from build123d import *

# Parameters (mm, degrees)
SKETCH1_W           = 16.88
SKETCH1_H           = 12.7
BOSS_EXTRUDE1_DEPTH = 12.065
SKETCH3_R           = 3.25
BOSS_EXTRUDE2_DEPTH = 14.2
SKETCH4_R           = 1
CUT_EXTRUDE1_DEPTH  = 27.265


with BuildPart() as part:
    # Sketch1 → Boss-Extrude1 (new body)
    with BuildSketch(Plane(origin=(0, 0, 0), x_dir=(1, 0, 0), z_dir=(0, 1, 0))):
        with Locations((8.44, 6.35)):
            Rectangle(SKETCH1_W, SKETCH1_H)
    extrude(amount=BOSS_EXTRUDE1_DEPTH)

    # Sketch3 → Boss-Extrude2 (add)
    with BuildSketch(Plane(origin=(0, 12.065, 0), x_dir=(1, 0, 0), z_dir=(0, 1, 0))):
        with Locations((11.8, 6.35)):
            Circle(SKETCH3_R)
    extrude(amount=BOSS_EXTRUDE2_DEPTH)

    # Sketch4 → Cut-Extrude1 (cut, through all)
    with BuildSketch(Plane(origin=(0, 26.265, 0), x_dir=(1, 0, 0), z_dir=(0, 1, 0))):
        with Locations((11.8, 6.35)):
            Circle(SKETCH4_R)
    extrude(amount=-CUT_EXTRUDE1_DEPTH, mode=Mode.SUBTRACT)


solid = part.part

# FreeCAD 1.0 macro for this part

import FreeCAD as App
import Part
import Sketcher


def add_polygon(sketch, points):
    """Adds a closed chain of lines whose ends are joined by coincident constraints."""
    first, n = sketch.GeometryCount, len(points)
    for a, b in zip(points, points[1:] + points[:1]):
        sketch.addGeometry(Part.LineSegment(App.Vector(*a, 0), App.Vector(*b, 0)), False)
    for i in range(n):
        sketch.addConstraint(Sketcher.Constraint("Coincident", first + i, 2, first + (i + 1) % n, 1))

doc = App.newDocument("Part")
body = doc.addObject("PartDesign::Body", "Body")

# Sketch on XZ plane
sketch1 = doc.addObject("Sketcher::SketchObject", "Sketch")
body.addObject(sketch1)
sketch1.AttachmentSupport = (doc.XZ_Plane, [""])
sketch1.MapMode = "FlatFace"
add_polygon(sketch1, [(0, -13), (0, 0), (17, 0), (17, -13)])  # lines 0-3
sketch1.addConstraint([
    Sketcher.Constraint("Vertical", 0),
    Sketcher.Constraint("Horizontal", 1),
    Sketcher.Constraint("Vertical", 2),
    Sketcher.Constraint("Horizontal", 3),
    Sketcher.Constraint("Coincident", 0, 2, -1, 1),
    Sketcher.Constraint("DistanceY", 0, 1, 0, 2, 12.7),
    Sketcher.Constraint("DistanceX", 1, 1, 1, 2, 16.88),
])
pad1 = doc.addObject("PartDesign::Pad", "Pad")
body.addObject(pad1)
pad1.Profile = sketch1
pad1.Length = 12.065
pad1.Reversed = True

# Sketch on XZ plane
sketch2 = doc.addObject("Sketcher::SketchObject", "Sketch001")
body.addObject(sketch2)
sketch2.AttachmentSupport = (doc.XZ_Plane, [""])
sketch2.MapMode = "FlatFace"
sketch2.AttachmentOffset = App.Placement(App.Vector(0, 0, -12.065), App.Rotation())
sketch2.addGeometry(Part.Circle(App.Vector(11.8, -6.3, 0), App.Vector(0, 0, 1), 3.2), False)
sketch2.addConstraint([
    Sketcher.Constraint("Diameter", 0, 6.5),
    Sketcher.Constraint("DistanceX", -1, 1, 0, 3, 11.8),
    Sketcher.Constraint("DistanceY", 0, 3, -1, 1, 6.35),
])
pad2 = doc.addObject("PartDesign::Pad", "Pad001")
body.addObject(pad2)
pad2.Profile = sketch2
pad2.Length = 14.2
pad2.Reversed = True

# Sketch on XZ plane
sketch3 = doc.addObject("Sketcher::SketchObject", "Sketch002")
body.addObject(sketch3)
sketch3.AttachmentSupport = (doc.XZ_Plane, [""])
sketch3.MapMode = "FlatFace"
sketch3.AttachmentOffset = App.Placement(App.Vector(0, 0, -26.265), App.Rotation())
sketch3.addGeometry(Part.Circle(App.Vector(11.8, -6.3, 0), App.Vector(0, 0, 1), 1), False)
sketch3.addConstraint([
    Sketcher.Constraint("Diameter", 0, 2.0),
    Sketcher.Constraint("DistanceX", -1, 1, 0, 3, 11.8),
    Sketcher.Constraint("DistanceY", 0, 3, -1, 1, 6.35),
])
pocket1 = doc.addObject("PartDesign::Pocket", "Pocket")
body.addObject(pocket1)
pocket1.Profile = sketch3
pocket1.Type = "ThroughAll"
pocket1.Reversed = True

doc.recompute()
